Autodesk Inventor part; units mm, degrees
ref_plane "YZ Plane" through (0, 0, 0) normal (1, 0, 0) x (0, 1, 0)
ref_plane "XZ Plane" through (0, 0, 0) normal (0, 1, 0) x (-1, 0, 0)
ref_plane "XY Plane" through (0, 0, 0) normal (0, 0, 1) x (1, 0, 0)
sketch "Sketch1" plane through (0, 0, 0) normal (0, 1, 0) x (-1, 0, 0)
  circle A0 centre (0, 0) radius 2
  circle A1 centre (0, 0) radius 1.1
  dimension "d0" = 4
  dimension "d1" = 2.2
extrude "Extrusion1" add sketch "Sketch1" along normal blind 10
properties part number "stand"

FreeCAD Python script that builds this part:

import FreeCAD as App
import Part
import Sketcher
from FreeCAD import Vector
Q = App.Units.Quantity

doc = App.newDocument("Part")
body = doc.addObject("PartDesign::Body", "Body")

# Sketch on XZ plane
sketch1 = doc.addObject("Sketcher::SketchObject", "Sketch")
body.addObject(sketch1)
sketch1.AttachmentSupport = (doc.XZ_Plane, [""])
sketch1.MapMode = "FlatFace"
sketch1.addGeometry([
    Part.Circle(Vector(0, 0, 0), Vector(0, 0, 1), 2),
    Part.Circle(Vector(0, 0, 0), Vector(0, 0, 1), 1.1),
], False)
sketch1.addConstraint([
    Sketcher.Constraint("Coincident", 0, 3, -1, 1),
    Sketcher.Constraint("Coincident", 1, 3, -1, 1),
    Sketcher.Constraint("Diameter", 0, Q("4 mm")),
    Sketcher.Constraint("Diameter", 1, Q("2.2 mm")),
])
pad1 = doc.addObject("PartDesign::Pad", "Pad")
body.addObject(pad1)
pad1.Profile = sketch1
pad1.Length = 10
pad1.Reversed = True

doc.recompute()
